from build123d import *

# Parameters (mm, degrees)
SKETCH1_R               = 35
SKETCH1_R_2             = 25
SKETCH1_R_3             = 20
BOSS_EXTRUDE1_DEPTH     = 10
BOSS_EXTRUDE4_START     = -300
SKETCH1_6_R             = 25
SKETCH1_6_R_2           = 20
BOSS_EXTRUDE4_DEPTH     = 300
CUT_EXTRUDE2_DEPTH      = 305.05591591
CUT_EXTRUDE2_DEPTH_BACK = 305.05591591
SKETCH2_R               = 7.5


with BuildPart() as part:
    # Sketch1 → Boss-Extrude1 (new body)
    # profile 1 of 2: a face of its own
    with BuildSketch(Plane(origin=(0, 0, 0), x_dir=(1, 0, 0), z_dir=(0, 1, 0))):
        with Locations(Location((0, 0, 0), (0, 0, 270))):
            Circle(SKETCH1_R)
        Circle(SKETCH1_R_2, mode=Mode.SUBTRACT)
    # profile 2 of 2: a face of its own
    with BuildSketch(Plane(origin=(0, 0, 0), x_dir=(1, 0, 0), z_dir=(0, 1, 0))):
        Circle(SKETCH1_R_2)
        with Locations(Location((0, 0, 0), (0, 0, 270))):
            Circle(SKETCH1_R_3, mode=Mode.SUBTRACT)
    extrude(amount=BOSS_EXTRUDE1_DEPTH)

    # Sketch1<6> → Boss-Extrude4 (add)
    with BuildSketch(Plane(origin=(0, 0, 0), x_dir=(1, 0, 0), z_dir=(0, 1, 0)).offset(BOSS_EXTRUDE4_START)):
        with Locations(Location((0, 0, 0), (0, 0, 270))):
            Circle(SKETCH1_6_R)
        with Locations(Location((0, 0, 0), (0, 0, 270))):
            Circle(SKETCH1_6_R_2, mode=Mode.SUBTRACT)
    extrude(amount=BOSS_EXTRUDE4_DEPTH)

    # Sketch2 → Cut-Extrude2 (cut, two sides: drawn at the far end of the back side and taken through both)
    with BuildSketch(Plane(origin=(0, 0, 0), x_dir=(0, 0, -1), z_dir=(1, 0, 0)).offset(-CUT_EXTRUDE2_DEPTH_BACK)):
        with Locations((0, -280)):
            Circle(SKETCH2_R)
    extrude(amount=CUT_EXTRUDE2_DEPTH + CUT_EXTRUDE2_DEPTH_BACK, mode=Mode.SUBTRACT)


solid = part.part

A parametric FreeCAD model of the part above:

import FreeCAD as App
import Part
import Sketcher
from FreeCAD import Vector
Q = App.Units.Quantity

doc = App.newDocument("Part")
body = doc.addObject("PartDesign::Body", "Body")

# Sketch on XZ plane
sketch1 = body.newObject("Sketcher::SketchObject", "Sketch")
sketch1.AttachmentSupport = (doc.getObject("XZ_Plane"), [""])
sketch1.MapMode = "FlatFace"
sketch1.addGeometry([
    Part.Circle(Vector(0, 0, 0), Vector(0, 0, 1), 35),
    Part.Circle(Vector(0, 0, 0), Vector(0, 0, 1), 20),
], False)
sketch1.addConstraint([
    Sketcher.Constraint("Coincident", 0, 3, -1, 1),
    Sketcher.Constraint("Coincident", 1, 3, -1, 1),
    Sketcher.Constraint("Diameter", 0, Q("70 mm")),
    Sketcher.Constraint("Diameter", 1, Q("40 mm")),
])
pad1 = body.newObject("PartDesign::Pad", "Pad")
pad1.Profile = sketch1
pad1.Length = 10
pad1.Reversed = True

# Sketch on XZ plane
sketch2 = body.newObject("Sketcher::SketchObject", "Sketch001")
sketch2.AttachmentSupport = (doc.getObject("XZ_Plane"), [""])
sketch2.MapMode = "FlatFace"
sketch2.AttachmentOffset = App.Placement(Vector(0, 0, 300), App.Rotation())
sketch2.addGeometry([
    Part.Circle(Vector(0, 0, 0), Vector(0, 0, 1), 25),
    Part.Circle(Vector(0, 0, 0), Vector(0, 0, 1), 20),
], False)
sketch2.addConstraint([
    Sketcher.Constraint("Coincident", 0, 3, -1, 1),
    Sketcher.Constraint("Coincident", 1, 3, -1, 1),
    Sketcher.Constraint("Diameter", 0, Q("50 mm")),
    Sketcher.Constraint("Diameter", 1, Q("40 mm")),
])
pad2 = body.newObject("PartDesign::Pad", "Pad001")
pad2.Profile = sketch2
pad2.Length = 300
pad2.Reversed = True

# Sketch on YZ plane
sketch3 = body.newObject("Sketcher::SketchObject", "Sketch002")
sketch3.AttachmentSupport = (doc.getObject("YZ_Plane"), [""])
sketch3.MapMode = "FlatFace"
sketch3.addGeometry(Part.Circle(Vector(-280, 0, 0), Vector(0, 0, 1), 8), False)
sketch3.addConstraint([
    Sketcher.Constraint("PointOnObject", 0, 3, -1),
    Sketcher.Constraint("Diameter", 0, Q("15 mm")),
    Sketcher.Constraint("DistanceX", 0, 3, -1, 1, Q("280 mm")),
])
pocket1 = body.newObject("PartDesign::Pocket", "Pocket")
pocket1.Profile = sketch3
pocket1.Type = "ThroughAll"
pocket1.Midplane = True

doc.recompute()
